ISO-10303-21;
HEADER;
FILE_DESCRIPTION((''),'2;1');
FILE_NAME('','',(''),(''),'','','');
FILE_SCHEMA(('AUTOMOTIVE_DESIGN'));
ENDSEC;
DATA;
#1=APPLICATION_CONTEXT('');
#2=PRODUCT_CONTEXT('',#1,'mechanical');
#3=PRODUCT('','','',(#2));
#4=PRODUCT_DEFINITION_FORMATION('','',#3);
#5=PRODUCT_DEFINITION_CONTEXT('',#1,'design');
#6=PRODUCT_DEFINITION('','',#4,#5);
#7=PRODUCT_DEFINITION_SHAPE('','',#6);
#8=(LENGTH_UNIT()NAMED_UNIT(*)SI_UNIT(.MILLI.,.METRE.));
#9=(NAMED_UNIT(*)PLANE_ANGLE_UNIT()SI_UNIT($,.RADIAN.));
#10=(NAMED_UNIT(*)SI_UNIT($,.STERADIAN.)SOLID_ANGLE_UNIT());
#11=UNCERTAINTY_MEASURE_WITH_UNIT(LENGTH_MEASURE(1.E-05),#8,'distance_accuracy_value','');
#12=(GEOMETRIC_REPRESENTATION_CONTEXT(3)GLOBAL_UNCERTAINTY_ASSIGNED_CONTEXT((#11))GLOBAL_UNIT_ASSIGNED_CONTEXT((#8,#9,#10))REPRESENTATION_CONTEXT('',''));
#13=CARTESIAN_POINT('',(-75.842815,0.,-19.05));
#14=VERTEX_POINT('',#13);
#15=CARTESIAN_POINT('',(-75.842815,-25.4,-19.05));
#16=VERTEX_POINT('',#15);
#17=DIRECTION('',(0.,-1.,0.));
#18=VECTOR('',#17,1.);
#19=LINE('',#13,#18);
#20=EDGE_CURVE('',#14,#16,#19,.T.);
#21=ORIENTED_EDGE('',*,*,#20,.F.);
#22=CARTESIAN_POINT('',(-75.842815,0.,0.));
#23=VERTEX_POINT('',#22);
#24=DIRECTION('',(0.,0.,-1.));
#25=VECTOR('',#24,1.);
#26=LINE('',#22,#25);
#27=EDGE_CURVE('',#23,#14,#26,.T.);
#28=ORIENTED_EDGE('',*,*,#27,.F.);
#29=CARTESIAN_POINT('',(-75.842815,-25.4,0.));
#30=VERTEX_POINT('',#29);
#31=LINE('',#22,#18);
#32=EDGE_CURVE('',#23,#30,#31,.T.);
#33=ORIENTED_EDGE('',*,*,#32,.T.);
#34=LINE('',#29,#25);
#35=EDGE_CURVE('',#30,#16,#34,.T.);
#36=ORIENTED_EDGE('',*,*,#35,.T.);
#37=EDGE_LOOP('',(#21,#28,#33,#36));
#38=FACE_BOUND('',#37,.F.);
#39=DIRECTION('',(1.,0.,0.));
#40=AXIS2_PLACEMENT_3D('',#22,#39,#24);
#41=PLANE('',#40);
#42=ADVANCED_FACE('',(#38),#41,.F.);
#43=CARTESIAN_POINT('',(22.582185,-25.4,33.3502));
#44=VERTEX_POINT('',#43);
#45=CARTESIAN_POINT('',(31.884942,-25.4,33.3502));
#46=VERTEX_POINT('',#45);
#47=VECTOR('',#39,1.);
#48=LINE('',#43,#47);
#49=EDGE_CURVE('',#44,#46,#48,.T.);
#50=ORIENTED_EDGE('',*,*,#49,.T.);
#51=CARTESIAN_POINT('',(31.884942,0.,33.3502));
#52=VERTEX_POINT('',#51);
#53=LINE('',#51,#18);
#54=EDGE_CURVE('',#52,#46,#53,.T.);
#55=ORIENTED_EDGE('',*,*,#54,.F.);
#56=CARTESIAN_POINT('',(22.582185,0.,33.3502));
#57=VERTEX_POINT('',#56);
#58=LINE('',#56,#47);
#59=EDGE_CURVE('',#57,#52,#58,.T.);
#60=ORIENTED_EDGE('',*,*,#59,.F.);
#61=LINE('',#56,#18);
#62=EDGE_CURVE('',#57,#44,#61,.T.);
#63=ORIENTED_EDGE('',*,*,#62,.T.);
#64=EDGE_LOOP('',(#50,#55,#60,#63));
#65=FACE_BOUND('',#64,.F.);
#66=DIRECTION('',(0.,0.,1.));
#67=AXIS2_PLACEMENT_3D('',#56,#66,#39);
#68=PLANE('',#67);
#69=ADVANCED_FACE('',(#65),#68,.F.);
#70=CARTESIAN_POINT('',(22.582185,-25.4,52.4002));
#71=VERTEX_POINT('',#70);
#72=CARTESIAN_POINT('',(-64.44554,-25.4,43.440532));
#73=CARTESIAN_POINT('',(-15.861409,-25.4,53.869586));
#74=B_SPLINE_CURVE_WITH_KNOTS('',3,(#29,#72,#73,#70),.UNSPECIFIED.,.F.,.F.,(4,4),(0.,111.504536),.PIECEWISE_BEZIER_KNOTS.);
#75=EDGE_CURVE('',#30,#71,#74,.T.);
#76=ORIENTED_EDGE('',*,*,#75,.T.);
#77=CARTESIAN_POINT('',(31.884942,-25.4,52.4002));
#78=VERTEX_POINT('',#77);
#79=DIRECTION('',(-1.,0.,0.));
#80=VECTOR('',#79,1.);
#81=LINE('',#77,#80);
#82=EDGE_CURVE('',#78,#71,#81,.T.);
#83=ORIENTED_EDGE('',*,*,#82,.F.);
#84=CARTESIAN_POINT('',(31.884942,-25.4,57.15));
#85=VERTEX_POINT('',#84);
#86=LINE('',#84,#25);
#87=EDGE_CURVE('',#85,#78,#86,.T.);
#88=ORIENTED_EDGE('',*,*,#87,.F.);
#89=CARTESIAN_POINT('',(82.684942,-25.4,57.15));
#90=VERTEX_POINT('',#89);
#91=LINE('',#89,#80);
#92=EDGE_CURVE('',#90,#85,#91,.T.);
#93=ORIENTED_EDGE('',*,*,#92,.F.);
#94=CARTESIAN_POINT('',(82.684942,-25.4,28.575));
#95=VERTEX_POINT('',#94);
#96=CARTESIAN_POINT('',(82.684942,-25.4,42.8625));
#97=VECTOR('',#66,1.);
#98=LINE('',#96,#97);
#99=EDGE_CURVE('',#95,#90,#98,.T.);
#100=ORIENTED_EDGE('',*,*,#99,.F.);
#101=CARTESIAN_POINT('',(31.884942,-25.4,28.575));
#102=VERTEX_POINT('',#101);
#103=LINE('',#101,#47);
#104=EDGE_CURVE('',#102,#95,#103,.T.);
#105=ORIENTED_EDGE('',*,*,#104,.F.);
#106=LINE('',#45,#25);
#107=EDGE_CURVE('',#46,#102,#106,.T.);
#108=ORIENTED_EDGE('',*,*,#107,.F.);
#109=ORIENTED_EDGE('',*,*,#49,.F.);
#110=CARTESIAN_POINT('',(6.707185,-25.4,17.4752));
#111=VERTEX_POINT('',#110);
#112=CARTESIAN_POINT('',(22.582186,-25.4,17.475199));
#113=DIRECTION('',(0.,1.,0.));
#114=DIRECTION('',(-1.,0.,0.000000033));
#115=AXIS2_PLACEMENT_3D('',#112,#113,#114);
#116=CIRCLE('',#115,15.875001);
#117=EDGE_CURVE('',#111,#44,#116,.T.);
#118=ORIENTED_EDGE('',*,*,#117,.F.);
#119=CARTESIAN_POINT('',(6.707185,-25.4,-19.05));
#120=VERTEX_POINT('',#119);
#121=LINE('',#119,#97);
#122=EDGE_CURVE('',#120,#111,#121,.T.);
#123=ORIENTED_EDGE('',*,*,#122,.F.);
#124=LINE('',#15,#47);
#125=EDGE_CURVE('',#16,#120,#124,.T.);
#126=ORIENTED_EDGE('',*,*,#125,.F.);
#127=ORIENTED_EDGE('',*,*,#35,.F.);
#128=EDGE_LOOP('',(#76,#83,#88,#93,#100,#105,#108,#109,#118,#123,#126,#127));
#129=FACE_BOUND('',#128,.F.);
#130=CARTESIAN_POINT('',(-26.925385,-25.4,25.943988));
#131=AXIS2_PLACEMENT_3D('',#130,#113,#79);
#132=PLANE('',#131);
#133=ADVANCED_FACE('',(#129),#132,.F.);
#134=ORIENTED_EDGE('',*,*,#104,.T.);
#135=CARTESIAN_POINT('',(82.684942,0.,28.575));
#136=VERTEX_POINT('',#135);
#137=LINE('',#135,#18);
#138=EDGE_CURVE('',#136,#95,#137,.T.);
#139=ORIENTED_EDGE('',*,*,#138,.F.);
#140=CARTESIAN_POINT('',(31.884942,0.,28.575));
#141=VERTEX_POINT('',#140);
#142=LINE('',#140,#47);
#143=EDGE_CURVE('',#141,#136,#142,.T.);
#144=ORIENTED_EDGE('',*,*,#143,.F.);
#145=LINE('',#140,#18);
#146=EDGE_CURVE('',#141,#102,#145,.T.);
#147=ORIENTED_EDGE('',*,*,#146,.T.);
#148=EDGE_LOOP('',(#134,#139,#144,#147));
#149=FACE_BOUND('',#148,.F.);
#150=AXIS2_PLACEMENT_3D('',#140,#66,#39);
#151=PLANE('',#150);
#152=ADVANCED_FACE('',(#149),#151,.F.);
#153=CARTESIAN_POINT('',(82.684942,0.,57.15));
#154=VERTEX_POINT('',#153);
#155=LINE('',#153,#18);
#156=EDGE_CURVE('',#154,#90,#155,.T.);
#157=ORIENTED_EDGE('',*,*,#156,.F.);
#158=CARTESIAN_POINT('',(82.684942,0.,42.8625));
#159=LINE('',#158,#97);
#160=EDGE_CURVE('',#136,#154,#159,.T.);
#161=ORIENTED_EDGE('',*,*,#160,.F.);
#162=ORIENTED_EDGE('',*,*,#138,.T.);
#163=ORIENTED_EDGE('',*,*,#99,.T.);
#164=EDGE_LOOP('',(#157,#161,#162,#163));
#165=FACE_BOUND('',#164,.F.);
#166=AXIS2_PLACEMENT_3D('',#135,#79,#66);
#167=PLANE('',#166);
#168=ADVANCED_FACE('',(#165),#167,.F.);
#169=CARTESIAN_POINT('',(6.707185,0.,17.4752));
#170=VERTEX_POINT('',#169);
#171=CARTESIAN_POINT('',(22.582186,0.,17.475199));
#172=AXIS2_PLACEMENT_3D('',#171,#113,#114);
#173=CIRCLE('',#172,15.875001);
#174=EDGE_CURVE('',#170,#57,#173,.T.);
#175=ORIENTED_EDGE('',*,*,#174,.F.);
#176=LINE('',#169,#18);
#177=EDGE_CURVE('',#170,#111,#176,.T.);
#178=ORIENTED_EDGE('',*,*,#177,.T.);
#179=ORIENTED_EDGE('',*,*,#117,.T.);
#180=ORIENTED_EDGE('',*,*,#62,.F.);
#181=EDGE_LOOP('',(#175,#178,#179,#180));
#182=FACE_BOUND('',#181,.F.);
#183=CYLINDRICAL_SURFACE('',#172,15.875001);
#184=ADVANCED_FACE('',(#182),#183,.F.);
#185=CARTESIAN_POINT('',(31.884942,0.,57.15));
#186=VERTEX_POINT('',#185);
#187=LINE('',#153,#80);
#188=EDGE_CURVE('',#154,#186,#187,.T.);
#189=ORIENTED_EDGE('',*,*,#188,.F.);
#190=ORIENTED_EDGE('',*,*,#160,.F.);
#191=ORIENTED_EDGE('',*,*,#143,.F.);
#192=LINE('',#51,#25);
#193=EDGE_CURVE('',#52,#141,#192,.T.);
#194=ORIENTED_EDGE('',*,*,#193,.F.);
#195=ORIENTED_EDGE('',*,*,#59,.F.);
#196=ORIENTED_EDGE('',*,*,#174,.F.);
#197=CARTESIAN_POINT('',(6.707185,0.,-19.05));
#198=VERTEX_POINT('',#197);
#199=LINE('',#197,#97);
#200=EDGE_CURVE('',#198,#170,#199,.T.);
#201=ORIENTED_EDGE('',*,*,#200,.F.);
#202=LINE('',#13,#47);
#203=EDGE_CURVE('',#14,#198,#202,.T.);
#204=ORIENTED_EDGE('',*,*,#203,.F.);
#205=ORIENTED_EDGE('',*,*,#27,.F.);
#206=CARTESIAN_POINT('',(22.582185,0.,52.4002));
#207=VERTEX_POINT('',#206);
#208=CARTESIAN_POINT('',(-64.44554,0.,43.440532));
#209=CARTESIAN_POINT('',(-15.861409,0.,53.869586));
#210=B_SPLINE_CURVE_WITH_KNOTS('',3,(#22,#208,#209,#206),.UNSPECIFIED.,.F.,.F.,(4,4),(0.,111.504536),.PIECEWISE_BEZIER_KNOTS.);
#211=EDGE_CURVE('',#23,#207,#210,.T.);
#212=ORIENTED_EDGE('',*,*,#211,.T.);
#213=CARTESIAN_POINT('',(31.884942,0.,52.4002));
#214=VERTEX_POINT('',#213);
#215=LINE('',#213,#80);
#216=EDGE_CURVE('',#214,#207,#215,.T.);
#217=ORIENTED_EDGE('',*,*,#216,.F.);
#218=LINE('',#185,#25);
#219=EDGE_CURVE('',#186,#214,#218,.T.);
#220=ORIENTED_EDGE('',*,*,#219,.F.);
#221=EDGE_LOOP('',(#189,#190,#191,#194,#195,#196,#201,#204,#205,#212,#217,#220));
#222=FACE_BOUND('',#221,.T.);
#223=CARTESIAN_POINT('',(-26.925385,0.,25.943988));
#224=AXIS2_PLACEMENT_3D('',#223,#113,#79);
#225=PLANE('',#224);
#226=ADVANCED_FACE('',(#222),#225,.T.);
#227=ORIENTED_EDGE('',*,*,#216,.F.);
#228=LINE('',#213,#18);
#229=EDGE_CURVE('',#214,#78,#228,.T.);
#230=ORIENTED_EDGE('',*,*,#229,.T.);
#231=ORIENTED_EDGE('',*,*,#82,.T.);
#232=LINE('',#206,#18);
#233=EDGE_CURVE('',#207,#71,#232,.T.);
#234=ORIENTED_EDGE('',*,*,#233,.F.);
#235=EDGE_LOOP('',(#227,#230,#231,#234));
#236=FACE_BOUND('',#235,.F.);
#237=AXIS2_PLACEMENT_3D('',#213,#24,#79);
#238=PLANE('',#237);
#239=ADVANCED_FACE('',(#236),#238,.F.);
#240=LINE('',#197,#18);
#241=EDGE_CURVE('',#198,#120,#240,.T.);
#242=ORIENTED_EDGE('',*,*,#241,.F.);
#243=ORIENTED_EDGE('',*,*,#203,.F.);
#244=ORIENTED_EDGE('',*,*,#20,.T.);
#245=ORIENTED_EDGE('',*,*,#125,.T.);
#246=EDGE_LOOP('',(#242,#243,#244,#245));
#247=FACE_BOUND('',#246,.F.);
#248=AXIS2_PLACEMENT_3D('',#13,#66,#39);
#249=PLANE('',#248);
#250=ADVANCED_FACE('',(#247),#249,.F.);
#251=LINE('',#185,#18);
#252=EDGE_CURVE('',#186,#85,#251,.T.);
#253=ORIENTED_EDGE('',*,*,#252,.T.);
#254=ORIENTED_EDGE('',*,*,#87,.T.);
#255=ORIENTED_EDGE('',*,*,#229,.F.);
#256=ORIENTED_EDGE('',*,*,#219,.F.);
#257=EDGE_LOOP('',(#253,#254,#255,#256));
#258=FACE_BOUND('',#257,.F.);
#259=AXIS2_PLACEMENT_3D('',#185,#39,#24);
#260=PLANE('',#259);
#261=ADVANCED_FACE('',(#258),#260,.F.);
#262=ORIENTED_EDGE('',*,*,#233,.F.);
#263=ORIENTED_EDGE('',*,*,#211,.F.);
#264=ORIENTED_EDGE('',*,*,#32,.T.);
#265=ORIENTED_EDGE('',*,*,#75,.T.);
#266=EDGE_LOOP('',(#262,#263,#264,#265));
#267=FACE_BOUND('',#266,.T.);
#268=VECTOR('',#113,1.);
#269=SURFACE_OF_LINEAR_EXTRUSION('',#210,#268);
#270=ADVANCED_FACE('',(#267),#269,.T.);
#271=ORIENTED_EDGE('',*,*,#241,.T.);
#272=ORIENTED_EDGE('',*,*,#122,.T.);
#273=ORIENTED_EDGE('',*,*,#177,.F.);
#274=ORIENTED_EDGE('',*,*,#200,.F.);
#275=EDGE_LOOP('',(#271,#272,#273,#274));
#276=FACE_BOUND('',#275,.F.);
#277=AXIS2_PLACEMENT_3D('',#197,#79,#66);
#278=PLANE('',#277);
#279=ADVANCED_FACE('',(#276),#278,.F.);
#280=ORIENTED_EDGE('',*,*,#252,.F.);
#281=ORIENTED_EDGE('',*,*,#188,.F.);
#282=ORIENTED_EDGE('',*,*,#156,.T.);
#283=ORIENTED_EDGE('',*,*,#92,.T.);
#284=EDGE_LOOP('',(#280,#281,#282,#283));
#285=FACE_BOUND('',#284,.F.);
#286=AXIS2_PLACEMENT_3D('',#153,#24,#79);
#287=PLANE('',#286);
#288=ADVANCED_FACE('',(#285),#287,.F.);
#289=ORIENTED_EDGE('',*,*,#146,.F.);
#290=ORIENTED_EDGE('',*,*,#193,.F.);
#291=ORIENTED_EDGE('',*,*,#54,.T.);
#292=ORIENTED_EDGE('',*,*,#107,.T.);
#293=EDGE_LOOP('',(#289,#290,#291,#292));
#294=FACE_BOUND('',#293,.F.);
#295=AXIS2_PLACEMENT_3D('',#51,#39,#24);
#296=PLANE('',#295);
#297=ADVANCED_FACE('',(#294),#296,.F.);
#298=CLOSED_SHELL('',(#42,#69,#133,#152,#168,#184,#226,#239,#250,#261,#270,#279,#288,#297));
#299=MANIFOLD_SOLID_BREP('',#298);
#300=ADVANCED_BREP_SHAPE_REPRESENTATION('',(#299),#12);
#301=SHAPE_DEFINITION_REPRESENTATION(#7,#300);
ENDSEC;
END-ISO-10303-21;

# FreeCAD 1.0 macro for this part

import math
import FreeCAD as App
import Part
import Sketcher
Q = App.Units.Quantity

doc = App.newDocument("Part")
params = doc.addObject("Spreadsheet::Sheet", "Params")
for row, (alias, value) in enumerate([
    ("sketch1_width", "2 in"),
    ("sketch1_radius", "0.625 in"),
    ("sketch1_height", "0.75 in"),
    ("sketch1_height2", "1.438 in"),
    ("sketch1_height3", "0.188 in"),
    ("pad1_length", "1 in"),
], start=1):
    params.set(f"A{row}", alias)
    params.set(f"B{row}", "=" + value)
    params.setAlias(f"B{row}", alias)

body = doc.addObject("PartDesign::Body", "Body")

sketch1 = body.newObject("Sketcher::SketchObject", "Sketch")
sketch1.AttachmentSupport = (doc.getObject("XZ_Plane"), [""])
sketch1.MapMode = "FlatFace"
sketch1.addGeometry(Part.BSplineCurve([App.Vector(-75.842815, 0, 0), App.Vector(-64.44554, 43.440532, 0), App.Vector(-15.861409, 53.869586, 0), App.Vector(22.582185, 52.4002, 0)], [4, 4], [0, 111.504536], False, 3, [1, 1, 1, 1], False), False)
sketch1.addGeometry(Part.LineSegment(App.Vector(-75.842815, 0, 0), App.Vector(-75.842815, -19.05, 0)), False)
sketch1.addGeometry(Part.LineSegment(App.Vector(-75.842815, -19.05, 0), App.Vector(6.707185, -19.05, 0)), False)
sketch1.addGeometry(Part.LineSegment(App.Vector(6.707185, -19.05, 0), App.Vector(6.707185, 17.4752, 0)), False)
sketch1.addGeometry(Part.ArcOfCircle(Part.Circle(App.Vector(22.582186, 17.475199, 0), App.Vector(0, 0, 1), 15.875001), math.radians(90.000002), math.radians(179.999998)), False)
sketch1.addGeometry(Part.LineSegment(App.Vector(22.582185, 33.3502, 0), App.Vector(31.884942, 33.3502, 0)), False)
sketch1.addGeometry(Part.LineSegment(App.Vector(31.884942, 33.3502, 0), App.Vector(31.884942, 28.575, 0)), False)
sketch1.addGeometry(Part.LineSegment(App.Vector(31.884942, 28.575, 0), App.Vector(82.684942, 28.575, 0)), False)
sketch1.addGeometry(Part.LineSegment(App.Vector(82.684942, 28.575, 0), App.Vector(82.684942, 57.15, 0)), False)
sketch1.addGeometry(Part.LineSegment(App.Vector(82.684942, 57.15, 0), App.Vector(31.884942, 57.15, 0)), False)
sketch1.addGeometry(Part.LineSegment(App.Vector(31.884942, 57.15, 0), App.Vector(31.884942, 52.4002, 0)), False)
sketch1.addGeometry(Part.LineSegment(App.Vector(31.884942, 52.4002, 0), App.Vector(22.582185, 52.4002, 0)), False)
sketch1.addConstraint(Sketcher.Constraint("Block", 0))
sketch1.addConstraint(Sketcher.Constraint("Coincident", 0, 1, 1, 1))
sketch1.addConstraint(Sketcher.Constraint("Coincident", 1, 2, 2, 1))
sketch1.addConstraint(Sketcher.Constraint("Coincident", 2, 2, 3, 1))
sketch1.addConstraint(Sketcher.Constraint("Tangent", 3, 2, 4, 2))
sketch1.addConstraint(Sketcher.Constraint("Tangent", 4, 1, 5, 1))
sketch1.addConstraint(Sketcher.Constraint("Coincident", 5, 2, 6, 1))
sketch1.addConstraint(Sketcher.Constraint("Coincident", 6, 2, 7, 1))
sketch1.addConstraint(Sketcher.Constraint("Coincident", 7, 2, 8, 1))
sketch1.addConstraint(Sketcher.Constraint("Coincident", 8, 2, 9, 1))
sketch1.addConstraint(Sketcher.Constraint("Coincident", 9, 2, 10, 1))
sketch1.addConstraint(Sketcher.Constraint("Coincident", 10, 2, 11, 1))
sketch1.addConstraint(Sketcher.Constraint("Coincident", 11, 2, 0, 2))
sketch1.addConstraint(Sketcher.Constraint("Vertical", 1))
sketch1.addConstraint(Sketcher.Constraint("Horizontal", 2))
sketch1.addConstraint(Sketcher.Constraint("Vertical", 3))
sketch1.addConstraint(Sketcher.Constraint("Horizontal", 5))
sketch1.addConstraint(Sketcher.Constraint("Vertical", 6))
sketch1.addConstraint(Sketcher.Constraint("Horizontal", 7))
sketch1.addConstraint(Sketcher.Constraint("Vertical", 8))
sketch1.addConstraint(Sketcher.Constraint("Horizontal", 9))
sketch1.addConstraint(Sketcher.Constraint("Vertical", 10))
sketch1.addConstraint(Sketcher.Constraint("Horizontal", 11))
sketch1.addConstraint(Sketcher.Constraint("Vertical", 6, 2, 9, 2))
sketch1.addConstraint(Sketcher.Constraint("Vertical", 4, 1, 11, 2))
sketch1.addConstraint(Sketcher.Constraint("DistanceX", 7, 1, 7, 2, Q("2 in")))
sketch1.addConstraint(Sketcher.Constraint("Radius", 4, Q("0.625 in")))
sketch1.addConstraint(Sketcher.Constraint("DistanceY", 1, 2, 1, 1, Q("0.75 in")))
sketch1.addConstraint(Sketcher.Constraint("DistanceY", 3, 1, 3, 2, Q("1.438 in")))
sketch1.addConstraint(Sketcher.Constraint("DistanceY", 6, 2, 6, 1, Q("0.188 in")))
sketch1.addConstraint(Sketcher.Constraint("DistanceY", 8, 1, 8, 2, Q("1.125 in")))
sketch1.addConstraint(Sketcher.Constraint("DistanceX", 5, 1, 5, 2, Q("9.302757 mm")))
sketch1.setExpression("Constraints[25]", "Params.sketch1_width")
sketch1.setExpression("Constraints[26]", "Params.sketch1_radius")
sketch1.setExpression("Constraints[27]", "Params.sketch1_height")
sketch1.setExpression("Constraints[28]", "Params.sketch1_height2")
sketch1.setExpression("Constraints[29]", "Params.sketch1_height3")
pad1 = body.newObject("PartDesign::Pad", "Pad")
pad1.Profile = sketch1
pad1.setExpression("Length", "Params.pad1_length")

doc.recompute()
